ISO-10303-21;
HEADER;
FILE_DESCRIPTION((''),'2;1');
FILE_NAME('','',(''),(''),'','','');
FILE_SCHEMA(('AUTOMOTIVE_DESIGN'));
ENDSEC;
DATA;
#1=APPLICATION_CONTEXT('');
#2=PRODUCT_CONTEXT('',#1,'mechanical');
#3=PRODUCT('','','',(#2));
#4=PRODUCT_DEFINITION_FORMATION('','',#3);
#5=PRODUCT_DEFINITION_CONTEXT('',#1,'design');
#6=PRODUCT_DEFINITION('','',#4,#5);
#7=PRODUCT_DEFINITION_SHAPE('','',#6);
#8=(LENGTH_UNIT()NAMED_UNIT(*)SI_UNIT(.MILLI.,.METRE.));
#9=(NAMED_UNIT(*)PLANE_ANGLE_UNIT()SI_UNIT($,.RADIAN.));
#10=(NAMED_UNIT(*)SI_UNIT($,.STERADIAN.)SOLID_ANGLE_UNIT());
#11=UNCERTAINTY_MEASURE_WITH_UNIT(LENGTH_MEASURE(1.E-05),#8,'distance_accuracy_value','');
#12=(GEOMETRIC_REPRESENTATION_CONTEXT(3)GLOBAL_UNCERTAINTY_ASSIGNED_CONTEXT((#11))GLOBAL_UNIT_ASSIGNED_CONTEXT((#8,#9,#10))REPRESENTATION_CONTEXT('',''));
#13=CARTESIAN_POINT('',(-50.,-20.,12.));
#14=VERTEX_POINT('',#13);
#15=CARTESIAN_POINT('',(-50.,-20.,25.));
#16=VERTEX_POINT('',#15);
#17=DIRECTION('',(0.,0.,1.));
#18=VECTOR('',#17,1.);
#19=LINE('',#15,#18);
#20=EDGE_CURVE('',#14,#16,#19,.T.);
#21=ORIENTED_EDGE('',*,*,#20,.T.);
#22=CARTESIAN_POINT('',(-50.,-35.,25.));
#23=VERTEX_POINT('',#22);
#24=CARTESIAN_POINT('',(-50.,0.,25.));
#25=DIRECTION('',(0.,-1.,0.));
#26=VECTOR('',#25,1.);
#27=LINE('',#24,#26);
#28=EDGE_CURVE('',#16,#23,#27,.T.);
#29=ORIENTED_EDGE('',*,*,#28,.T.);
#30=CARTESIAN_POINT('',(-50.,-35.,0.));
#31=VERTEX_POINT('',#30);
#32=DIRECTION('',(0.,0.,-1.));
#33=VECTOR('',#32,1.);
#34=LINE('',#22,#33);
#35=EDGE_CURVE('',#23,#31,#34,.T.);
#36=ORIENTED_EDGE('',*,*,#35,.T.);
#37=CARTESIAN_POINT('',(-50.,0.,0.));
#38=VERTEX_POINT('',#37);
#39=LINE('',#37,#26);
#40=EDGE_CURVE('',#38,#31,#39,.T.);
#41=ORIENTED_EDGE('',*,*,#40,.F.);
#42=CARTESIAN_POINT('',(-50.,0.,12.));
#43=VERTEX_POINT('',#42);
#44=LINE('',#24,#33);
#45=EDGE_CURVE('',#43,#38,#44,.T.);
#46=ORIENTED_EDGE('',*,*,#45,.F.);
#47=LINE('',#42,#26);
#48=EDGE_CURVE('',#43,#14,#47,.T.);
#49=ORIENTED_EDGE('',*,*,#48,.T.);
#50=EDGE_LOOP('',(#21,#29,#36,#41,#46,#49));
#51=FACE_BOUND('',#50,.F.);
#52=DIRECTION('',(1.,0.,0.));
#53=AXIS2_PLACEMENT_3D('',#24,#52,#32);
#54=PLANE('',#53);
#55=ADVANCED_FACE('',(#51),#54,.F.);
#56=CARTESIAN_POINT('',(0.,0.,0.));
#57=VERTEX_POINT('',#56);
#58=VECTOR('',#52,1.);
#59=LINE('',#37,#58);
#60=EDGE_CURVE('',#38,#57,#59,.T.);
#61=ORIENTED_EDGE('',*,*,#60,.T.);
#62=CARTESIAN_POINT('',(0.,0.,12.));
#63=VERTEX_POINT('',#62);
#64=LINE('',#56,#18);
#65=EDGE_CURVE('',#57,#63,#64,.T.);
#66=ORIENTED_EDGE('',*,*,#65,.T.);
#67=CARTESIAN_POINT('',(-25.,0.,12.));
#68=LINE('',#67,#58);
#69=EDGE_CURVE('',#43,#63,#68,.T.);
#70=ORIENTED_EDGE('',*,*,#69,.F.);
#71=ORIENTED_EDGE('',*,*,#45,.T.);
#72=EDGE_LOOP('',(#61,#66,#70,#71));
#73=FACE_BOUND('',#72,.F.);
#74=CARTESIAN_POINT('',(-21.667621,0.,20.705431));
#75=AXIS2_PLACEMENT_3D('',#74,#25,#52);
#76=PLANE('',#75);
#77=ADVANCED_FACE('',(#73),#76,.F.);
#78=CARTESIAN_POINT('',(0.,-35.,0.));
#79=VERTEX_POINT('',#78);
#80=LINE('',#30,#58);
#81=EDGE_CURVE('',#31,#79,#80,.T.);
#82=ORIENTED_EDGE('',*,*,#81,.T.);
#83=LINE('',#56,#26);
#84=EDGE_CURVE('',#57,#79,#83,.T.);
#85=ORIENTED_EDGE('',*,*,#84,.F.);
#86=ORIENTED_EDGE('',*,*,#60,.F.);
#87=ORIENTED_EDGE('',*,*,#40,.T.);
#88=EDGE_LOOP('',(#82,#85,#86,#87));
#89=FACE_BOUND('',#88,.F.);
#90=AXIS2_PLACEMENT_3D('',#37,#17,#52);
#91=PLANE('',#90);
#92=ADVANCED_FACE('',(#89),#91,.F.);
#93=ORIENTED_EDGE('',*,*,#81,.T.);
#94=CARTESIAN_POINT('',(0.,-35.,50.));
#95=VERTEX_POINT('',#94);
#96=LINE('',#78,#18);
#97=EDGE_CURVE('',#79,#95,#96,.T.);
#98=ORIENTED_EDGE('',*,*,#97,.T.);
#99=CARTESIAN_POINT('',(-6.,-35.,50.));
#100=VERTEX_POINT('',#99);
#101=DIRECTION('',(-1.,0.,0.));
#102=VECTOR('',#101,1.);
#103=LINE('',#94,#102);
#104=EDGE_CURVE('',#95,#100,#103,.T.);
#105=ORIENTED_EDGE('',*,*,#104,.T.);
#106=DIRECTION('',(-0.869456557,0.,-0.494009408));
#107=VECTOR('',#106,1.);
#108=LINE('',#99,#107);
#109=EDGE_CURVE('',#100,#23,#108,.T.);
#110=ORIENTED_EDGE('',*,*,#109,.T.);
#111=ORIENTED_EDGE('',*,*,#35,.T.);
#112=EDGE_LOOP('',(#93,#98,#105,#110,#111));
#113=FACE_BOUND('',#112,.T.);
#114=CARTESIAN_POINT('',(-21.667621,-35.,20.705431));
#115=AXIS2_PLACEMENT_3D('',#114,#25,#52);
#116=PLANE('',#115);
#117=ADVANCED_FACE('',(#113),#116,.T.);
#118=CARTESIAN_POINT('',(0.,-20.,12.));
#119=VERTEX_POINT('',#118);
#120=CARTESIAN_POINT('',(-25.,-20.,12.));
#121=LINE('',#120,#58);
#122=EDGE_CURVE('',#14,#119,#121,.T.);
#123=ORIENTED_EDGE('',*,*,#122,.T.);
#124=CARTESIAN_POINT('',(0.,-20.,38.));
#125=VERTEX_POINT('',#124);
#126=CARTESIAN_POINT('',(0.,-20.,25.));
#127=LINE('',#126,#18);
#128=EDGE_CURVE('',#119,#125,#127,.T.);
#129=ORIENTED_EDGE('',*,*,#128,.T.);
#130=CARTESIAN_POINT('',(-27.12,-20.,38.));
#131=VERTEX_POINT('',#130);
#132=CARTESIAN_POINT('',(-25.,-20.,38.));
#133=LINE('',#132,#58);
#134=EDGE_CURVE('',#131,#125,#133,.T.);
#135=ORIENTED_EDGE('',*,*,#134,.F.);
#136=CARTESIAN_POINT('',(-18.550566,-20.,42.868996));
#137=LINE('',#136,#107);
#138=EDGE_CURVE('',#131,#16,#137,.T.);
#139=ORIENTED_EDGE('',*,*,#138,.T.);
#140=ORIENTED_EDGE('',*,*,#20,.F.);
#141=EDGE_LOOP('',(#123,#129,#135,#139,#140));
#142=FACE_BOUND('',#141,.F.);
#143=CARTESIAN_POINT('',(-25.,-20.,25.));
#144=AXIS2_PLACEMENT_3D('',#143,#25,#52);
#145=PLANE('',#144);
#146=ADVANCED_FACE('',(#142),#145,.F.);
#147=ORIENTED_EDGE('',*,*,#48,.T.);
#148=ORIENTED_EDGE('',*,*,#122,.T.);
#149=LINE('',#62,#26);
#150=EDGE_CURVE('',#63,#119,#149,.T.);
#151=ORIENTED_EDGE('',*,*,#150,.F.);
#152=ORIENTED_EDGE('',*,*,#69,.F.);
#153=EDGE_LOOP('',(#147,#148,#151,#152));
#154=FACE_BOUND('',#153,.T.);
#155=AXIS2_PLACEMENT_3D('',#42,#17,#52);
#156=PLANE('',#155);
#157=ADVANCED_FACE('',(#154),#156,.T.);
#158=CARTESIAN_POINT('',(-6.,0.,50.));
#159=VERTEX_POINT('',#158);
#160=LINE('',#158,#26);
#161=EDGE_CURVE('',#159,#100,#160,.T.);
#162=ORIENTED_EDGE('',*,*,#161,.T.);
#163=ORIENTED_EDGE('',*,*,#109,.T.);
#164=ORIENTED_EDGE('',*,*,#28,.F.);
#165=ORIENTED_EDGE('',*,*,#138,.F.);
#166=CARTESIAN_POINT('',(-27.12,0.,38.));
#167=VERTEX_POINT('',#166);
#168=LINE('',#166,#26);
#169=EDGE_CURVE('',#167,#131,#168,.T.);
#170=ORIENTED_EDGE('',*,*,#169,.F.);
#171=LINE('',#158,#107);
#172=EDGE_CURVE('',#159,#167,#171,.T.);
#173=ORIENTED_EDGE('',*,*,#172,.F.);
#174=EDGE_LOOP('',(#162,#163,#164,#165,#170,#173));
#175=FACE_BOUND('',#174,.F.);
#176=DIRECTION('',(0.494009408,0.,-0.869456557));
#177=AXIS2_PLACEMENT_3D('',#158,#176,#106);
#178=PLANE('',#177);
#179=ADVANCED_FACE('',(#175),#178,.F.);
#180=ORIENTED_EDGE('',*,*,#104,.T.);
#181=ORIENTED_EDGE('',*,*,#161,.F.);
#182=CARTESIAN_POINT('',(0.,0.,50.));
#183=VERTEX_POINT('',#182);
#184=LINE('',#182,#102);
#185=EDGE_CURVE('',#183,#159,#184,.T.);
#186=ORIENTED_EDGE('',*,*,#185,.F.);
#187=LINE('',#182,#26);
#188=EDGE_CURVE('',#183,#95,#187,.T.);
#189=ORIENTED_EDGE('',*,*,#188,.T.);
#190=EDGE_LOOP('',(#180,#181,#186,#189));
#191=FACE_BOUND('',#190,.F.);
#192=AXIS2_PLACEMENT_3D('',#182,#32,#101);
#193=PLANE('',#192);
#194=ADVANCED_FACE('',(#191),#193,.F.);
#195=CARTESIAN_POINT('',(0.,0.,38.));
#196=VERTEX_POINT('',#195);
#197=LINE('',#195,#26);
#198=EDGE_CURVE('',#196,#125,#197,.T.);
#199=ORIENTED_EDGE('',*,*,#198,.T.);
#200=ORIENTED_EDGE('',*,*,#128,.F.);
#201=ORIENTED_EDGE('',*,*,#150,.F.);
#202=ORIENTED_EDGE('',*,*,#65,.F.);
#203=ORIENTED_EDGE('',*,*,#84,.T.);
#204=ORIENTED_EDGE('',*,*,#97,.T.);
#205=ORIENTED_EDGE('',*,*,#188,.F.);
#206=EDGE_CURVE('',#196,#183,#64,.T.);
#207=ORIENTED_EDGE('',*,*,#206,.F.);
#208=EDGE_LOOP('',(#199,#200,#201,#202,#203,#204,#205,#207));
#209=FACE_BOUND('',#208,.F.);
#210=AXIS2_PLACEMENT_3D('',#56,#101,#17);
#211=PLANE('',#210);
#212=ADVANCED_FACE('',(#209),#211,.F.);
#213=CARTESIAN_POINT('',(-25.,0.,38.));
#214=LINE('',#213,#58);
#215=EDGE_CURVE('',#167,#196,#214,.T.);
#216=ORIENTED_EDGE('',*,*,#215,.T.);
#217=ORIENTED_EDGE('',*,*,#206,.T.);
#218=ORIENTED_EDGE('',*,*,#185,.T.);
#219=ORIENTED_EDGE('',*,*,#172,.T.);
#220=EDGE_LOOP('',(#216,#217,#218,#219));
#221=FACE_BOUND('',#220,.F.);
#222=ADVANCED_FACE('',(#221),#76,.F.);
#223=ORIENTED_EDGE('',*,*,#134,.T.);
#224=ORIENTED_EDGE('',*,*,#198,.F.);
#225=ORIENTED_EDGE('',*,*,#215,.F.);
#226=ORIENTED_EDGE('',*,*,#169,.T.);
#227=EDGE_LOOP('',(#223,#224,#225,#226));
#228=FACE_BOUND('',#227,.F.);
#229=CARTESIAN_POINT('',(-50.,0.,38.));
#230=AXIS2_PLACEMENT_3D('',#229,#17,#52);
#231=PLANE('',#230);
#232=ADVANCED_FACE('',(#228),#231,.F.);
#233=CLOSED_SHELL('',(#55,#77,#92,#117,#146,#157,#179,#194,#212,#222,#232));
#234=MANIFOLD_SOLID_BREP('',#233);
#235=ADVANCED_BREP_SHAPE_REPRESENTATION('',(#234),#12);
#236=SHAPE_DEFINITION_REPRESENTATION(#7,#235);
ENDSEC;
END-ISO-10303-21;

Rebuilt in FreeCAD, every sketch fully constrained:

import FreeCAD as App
import Part
import Sketcher

V = App.Vector


def add_polygon(sketch, points):
    """Adds a closed chain of lines whose ends are joined by coincident constraints."""
    first, n = sketch.GeometryCount, len(points)
    for a, b in zip(points, points[1:] + points[:1]):
        sketch.addGeometry(Part.LineSegment(App.Vector(*a, 0), App.Vector(*b, 0)), False)
    for i in range(n):
        sketch.addConstraint(Sketcher.Constraint("Coincident", first + i, 2, first + (i + 1) % n, 1))

doc = App.newDocument("Part")
params = doc.addObject("Spreadsheet::Sheet", "Params")
for row, (alias, value) in enumerate([
    ("sketch1_width", "50 mm"),
    ("sketch1_width2", "6 mm"),
    ("sketch1_height", "25 mm"),
    ("pad1_length", "35 mm"),
    ("sketch2_width", "50 mm"),
    ("sketch2_height", "26 mm"),
    ("pocket1_length", "20 mm"),
], start=1):
    params.set(f"A{row}", alias)
    params.set(f"B{row}", "=" + value)
    params.setAlias(f"B{row}", alias)

body = doc.addObject("PartDesign::Body", "Body")

sketch1 = body.newObject("Sketcher::SketchObject", "Sketch")
sketch1.AttachmentSupport = (doc.getObject("XZ_Plane"), [""])
sketch1.MapMode = "FlatFace"
add_polygon(sketch1, [(-50, 0), (0, 0), (0, 50), (-6, 50), (-50, 25)])
sketch1.addConstraint([
    Sketcher.Constraint("Horizontal", 0),
    Sketcher.Constraint("Vertical", 1),
    Sketcher.Constraint("Horizontal", 2),
    Sketcher.Constraint("Vertical", 4),
    Sketcher.Constraint("Coincident", 0, 2, -1, 1),
    Sketcher.Constraint("Equal", 0, 1),
    Sketcher.Constraint("DistanceX", 0, 1, 0, 2, 50.0),
    Sketcher.Constraint("DistanceX", 2, 2, 2, 1, 6.0),
    Sketcher.Constraint("DistanceY", 4, 2, 4, 1, 25.0),
])
sketch1.setExpression("Constraints[11]", "Params.sketch1_width")
sketch1.setExpression("Constraints[12]", "Params.sketch1_width2")
sketch1.setExpression("Constraints[13]", "Params.sketch1_height")
pad1 = body.newObject("PartDesign::Pad", "Pad")
pad1.Profile = sketch1
pad1.setExpression("Length", "Params.pad1_length")

sketch2 = body.newObject("Sketcher::SketchObject", "Sketch001")
sketch2.AttachmentSupport = (doc.getObject("XZ_Plane"), [""])
sketch2.MapMode = "FlatFace"
add_polygon(sketch2, [(-50, 38), (-50, 12), (0, 12), (0, 38)])
sketch2.addConstraint([
    Sketcher.Constraint("Vertical", 0),
    Sketcher.Constraint("Horizontal", 1),
    Sketcher.Constraint("Vertical", 2),
    Sketcher.Constraint("Horizontal", 3),
    Sketcher.Constraint("PointOnObject", 1, 2, -2),
    Sketcher.Constraint("DistanceX", 1, 1, 1, 2, 50.0),
    Sketcher.Constraint("DistanceY", 0, 2, 0, 1, 26.0),
    Sketcher.Constraint("DistanceY", -1, 1, 0, 2, 12.0),
])
sketch2.setExpression("Constraints[9]", "Params.sketch2_width")
sketch2.setExpression("Constraints[10]", "Params.sketch2_height")
pocket1 = body.newObject("PartDesign::Pocket", "Pocket")
pocket1.Profile = sketch2
pocket1.setExpression("Length", "Params.pocket1_length")
pocket1.Reversed = True

doc.recompute()
